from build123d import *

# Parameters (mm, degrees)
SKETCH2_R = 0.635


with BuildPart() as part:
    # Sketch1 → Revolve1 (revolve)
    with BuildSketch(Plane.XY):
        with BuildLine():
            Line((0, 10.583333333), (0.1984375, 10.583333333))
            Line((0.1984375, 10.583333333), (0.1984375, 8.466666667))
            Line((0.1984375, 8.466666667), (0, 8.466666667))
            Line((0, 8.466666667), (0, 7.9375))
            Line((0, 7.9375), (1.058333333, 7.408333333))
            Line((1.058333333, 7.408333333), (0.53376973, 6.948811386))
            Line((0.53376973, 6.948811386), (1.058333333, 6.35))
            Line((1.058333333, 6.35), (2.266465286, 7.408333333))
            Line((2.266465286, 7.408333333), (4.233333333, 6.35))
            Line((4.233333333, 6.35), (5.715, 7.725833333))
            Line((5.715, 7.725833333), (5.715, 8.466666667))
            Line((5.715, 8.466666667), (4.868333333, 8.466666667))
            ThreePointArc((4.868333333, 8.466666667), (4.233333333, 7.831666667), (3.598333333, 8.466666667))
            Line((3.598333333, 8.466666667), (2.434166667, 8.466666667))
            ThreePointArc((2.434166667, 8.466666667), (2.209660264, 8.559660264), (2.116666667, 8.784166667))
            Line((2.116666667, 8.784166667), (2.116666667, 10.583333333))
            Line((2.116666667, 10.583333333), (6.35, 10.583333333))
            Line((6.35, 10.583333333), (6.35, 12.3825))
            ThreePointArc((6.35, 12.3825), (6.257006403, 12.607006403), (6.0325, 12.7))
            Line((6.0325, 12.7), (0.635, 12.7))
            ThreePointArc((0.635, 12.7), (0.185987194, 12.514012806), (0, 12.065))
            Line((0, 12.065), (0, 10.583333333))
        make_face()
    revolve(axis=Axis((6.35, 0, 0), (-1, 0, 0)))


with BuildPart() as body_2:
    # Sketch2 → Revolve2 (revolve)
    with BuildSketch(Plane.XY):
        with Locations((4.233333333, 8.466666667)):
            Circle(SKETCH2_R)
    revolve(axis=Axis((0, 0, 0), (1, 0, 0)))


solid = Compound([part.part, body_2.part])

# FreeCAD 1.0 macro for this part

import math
import FreeCAD as App
import Part
import Sketcher
from FreeCAD import Vector
Q = App.Units.Quantity

doc = App.newDocument("Part")
params = doc.addObject("Spreadsheet::Sheet", "Params")
for row, (alias, value) in enumerate([
    ("sketch1_radius", "0.025 in"),
    ("revolution_angle", "360 deg"),
    ("sketch2_diameter", "0.05 in"),
    ("revolution2_angle", "360 deg"),
], start=1):
    params.set(f"A{row}", alias)
    params.set(f"B{row}", "=" + value)
    params.setAlias(f"B{row}", alias)

body = doc.addObject("PartDesign::Body", "Body")

sketch1 = body.newObject("Sketcher::SketchObject", "Sketch")
sketch1.AttachmentSupport = (doc.getObject("XY_Plane"), [""])
sketch1.MapMode = "FlatFace"
sketch1.addGeometry([
    Part.LineSegment(Vector(0, 10.58, 0), Vector(0.2, 10.58, 0)),
    Part.LineSegment(Vector(0.2, 10.58, 0), Vector(0.2, 8.47, 0)),
    Part.LineSegment(Vector(0.2, 8.47, 0), Vector(0, 8.47, 0)),
    Part.LineSegment(Vector(0, 8.47, 0), Vector(0, 7.94, 0)),
    Part.LineSegment(Vector(0, 7.94, 0), Vector(1.06, 7.41, 0)),
    Part.LineSegment(Vector(1.06, 7.41, 0), Vector(0.53, 6.95, 0)),
    Part.LineSegment(Vector(0.53, 6.95, 0), Vector(1.06, 6.35, 0)),
    Part.LineSegment(Vector(1.06, 6.35, 0), Vector(2.27, 7.41, 0)),
    Part.LineSegment(Vector(2.27, 7.41, 0), Vector(4.23, 6.35, 0)),
    Part.LineSegment(Vector(4.23, 6.35, 0), Vector(5.71, 7.73, 0)),
    Part.LineSegment(Vector(5.71, 7.73, 0), Vector(5.71, 8.47, 0)),
    Part.LineSegment(Vector(5.71, 8.47, 0), Vector(4.87, 8.47, 0)),
    Part.ArcOfCircle(Part.Circle(Vector(4.23, 8.47, 0), Vector(0, 0, 1), 0.64), math.radians(180), math.radians(360)),
    Part.LineSegment(Vector(3.6, 8.47, 0), Vector(2.43, 8.47, 0)),
    Part.ArcOfCircle(Part.Circle(Vector(2.43, 8.78, 0), Vector(0, 0, 1), 0.32), math.radians(180), math.radians(270)),
    Part.LineSegment(Vector(2.12, 8.78, 0), Vector(2.12, 10.58, 0)),
    Part.LineSegment(Vector(2.12, 10.58, 0), Vector(6.35, 10.58, 0)),
    Part.LineSegment(Vector(6.35, 10.58, 0), Vector(6.35, 12.38, 0)),
    Part.ArcOfCircle(Part.Circle(Vector(6.03, 12.38, 0), Vector(0, 0, 1), 0.32), math.radians(0), math.radians(90)),
    Part.LineSegment(Vector(6.03, 12.7, 0), Vector(0.64, 12.7, 0)),
    Part.ArcOfCircle(Part.Circle(Vector(0.64, 12.06, 0), Vector(0, 0, 1), 0.64), math.radians(90), math.radians(180)),
    Part.LineSegment(Vector(0, 12.06, 0), Vector(0, 10.58, 0)),
], False)
sketch1.addConstraint([
    Sketcher.Constraint("Coincident", 0, 2, 1, 1),
    Sketcher.Constraint("Coincident", 1, 2, 2, 1),
    Sketcher.Constraint("Coincident", 2, 2, 3, 1),
    Sketcher.Constraint("Coincident", 3, 2, 4, 1),
    Sketcher.Constraint("Coincident", 4, 2, 5, 1),
    Sketcher.Constraint("Coincident", 5, 2, 6, 1),
    Sketcher.Constraint("Coincident", 6, 2, 7, 1),
    Sketcher.Constraint("Coincident", 7, 2, 8, 1),
    Sketcher.Constraint("Coincident", 8, 2, 9, 1),
    Sketcher.Constraint("Coincident", 9, 2, 10, 1),
    Sketcher.Constraint("Coincident", 10, 2, 11, 1),
    Sketcher.Constraint("Coincident", 11, 2, 12, 2),
    Sketcher.Constraint("Coincident", 12, 1, 13, 1),
    Sketcher.Constraint("Tangent", 13, 2, 14, 2),
    Sketcher.Constraint("Tangent", 14, 1, 15, 1),
    Sketcher.Constraint("Coincident", 15, 2, 16, 1),
    Sketcher.Constraint("Coincident", 16, 2, 17, 1),
    Sketcher.Constraint("Tangent", 17, 2, 18, 1),
    Sketcher.Constraint("Tangent", 18, 2, 19, 1),
    Sketcher.Constraint("Tangent", 19, 2, 20, 1),
    Sketcher.Constraint("Tangent", 20, 2, 21, 1),
    Sketcher.Constraint("Coincident", 21, 2, 0, 1),
    Sketcher.Constraint("Horizontal", 0),
    Sketcher.Constraint("Vertical", 1),
    Sketcher.Constraint("Horizontal", 2),
    Sketcher.Constraint("Vertical", 3),
    Sketcher.Constraint("Vertical", 10),
    Sketcher.Constraint("Horizontal", 11),
    Sketcher.Constraint("Horizontal", 13),
    Sketcher.Constraint("Vertical", 15),
    Sketcher.Constraint("Horizontal", 16),
    Sketcher.Constraint("Vertical", 17),
    Sketcher.Constraint("Horizontal", 19),
    Sketcher.Constraint("Vertical", 21),
    Sketcher.Constraint("Equal", 14, 18),
    Sketcher.Constraint("Equal", 12, 20),
    Sketcher.Constraint("PointOnObject", 2, 2, -2),
    Sketcher.Constraint("PointOnObject", 20, 2, -2),
    Sketcher.Constraint("Perpendicular", 5, 6),
    Sketcher.Constraint("Perpendicular", 6, 7),
    Sketcher.Constraint("Horizontal", 12, 3, 1, 2),
    Sketcher.Constraint("Horizontal", 4, 2, 7, 2),
    Sketcher.Constraint("Horizontal", 6, 2, 8, 2),
    Sketcher.Constraint("Horizontal", 2, 2, 10, 2),
    Sketcher.Constraint("Horizontal", 11, 2, 12, 1),
    Sketcher.Constraint("Horizontal", 0, 2, 15, 2),
    Sketcher.Constraint("Vertical", 4, 2, 6, 2),
    Sketcher.Constraint("Vertical", 12, 3, 8, 2),
    Sketcher.Constraint("Equal", 15, 17),
    Sketcher.Constraint("Radius", 12, Q("0.025 in")),
    Sketcher.Constraint("DistanceY", -1, 1, 18, 2, Q("0.5 in")),
    Sketcher.Constraint("Radius", 14, Q("0.0125 in")),
    Sketcher.Constraint("DistanceY", -1, 1, 6, 2, Q("0.25 in")),
    Sketcher.Constraint("DistanceX", -1, 1, 16, 2, Q("0.25 in")),
    Sketcher.Constraint("DistanceY", -1, 1, 3, 2, Q("0.3125 in")),
    Sketcher.Constraint("DistanceX", -1, 1, 9, 2, Q("0.225 in")),
    Sketcher.Constraint("DistanceY", 4, 2, 0, 2, Q("0.125 in")),
    Sketcher.Constraint("DistanceX", 6, 2, 8, 2, Q("0.125 in")),
    Sketcher.Constraint("DistanceY", 7, 2, 9, 2, Q("0.0125 in")),
    Sketcher.Constraint("DistanceX", 7, 2, 14, 3, Q("0.167701 mm")),
    Sketcher.Constraint("Distance", 5, Q("0.697372 mm")),
    Sketcher.Constraint("Distance", 6, Q("0.796079 mm")),
    Sketcher.Constraint("DistanceX", 0, 1, 0, 2, Q("0.198437 mm")),
    Sketcher.Constraint("DistanceX", 11, 2, 11, 1, Q("0.846667 mm")),
])
sketch1.setExpression("Constraints[49]", "Params.sketch1_radius")
revolution = body.newObject("PartDesign::Revolution", "Revolution")
revolution.Profile = sketch1
revolution.ReferenceAxis = (sketch1, ["H_Axis"])
revolution.setExpression("Angle", "Params.revolution_angle")
body2 = doc.addObject("PartDesign::Body", "Body001")

sketch2 = body2.newObject("Sketcher::SketchObject", "Sketch001")
sketch2.AttachmentSupport = (doc.getObject("XY_Plane001"), [""])
sketch2.MapMode = "FlatFace"
sketch2.addGeometry(Part.Circle(Vector(4.2, 8.5, 0), Vector(0, 0, 1), 0.6), False)
sketch2.addConstraint([
    Sketcher.Constraint("Diameter", 0, Q("0.05 in")),
    Sketcher.Constraint("DistanceX", -1, 1, 0, 3, Q("4.233333 mm")),
    Sketcher.Constraint("DistanceY", -1, 1, 0, 3, Q("8.466667 mm")),
])
sketch2.setExpression("Constraints[0]", "Params.sketch2_diameter")
revolution2 = body2.newObject("PartDesign::Revolution", "Revolution001")
revolution2.Profile = sketch2
revolution2.ReferenceAxis = (sketch2, ["H_Axis"])
revolution2.setExpression("Angle", "Params.revolution2_angle")

doc.recompute()
